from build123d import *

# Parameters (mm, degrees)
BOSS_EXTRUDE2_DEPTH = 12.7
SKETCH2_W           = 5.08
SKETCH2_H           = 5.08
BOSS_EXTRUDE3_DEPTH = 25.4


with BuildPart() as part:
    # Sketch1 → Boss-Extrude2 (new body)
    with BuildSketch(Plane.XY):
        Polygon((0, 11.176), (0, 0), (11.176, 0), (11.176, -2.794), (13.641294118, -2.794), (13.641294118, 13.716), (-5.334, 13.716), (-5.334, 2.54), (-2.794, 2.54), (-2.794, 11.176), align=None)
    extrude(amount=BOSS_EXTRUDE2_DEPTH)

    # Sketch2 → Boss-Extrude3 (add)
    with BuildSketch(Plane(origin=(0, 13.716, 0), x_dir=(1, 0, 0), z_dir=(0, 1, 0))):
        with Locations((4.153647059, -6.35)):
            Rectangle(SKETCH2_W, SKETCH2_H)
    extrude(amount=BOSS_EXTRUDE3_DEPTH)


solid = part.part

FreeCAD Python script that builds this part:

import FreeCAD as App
import Part
import Sketcher
from FreeCAD import Vector
Q = App.Units.Quantity


def add_polygon(sketch, points):
    """Adds a closed chain of lines whose ends are joined by coincident constraints."""
    first, n = sketch.GeometryCount, len(points)
    for a, b in zip(points, points[1:] + points[:1]):
        sketch.addGeometry(Part.LineSegment(App.Vector(*a, 0), App.Vector(*b, 0)), False)
    for i in range(n):
        sketch.addConstraint(Sketcher.Constraint("Coincident", first + i, 2, first + (i + 1) % n, 1))

doc = App.newDocument("Part")
body = doc.addObject("PartDesign::Body", "Body")

sketch1 = body.newObject("Sketcher::SketchObject", "Sketch")
sketch1.AttachmentSupport = (doc.getObject("XY_Plane"), [""])
sketch1.MapMode = "FlatFace"
add_polygon(sketch1, [(0, 11.2), (0, 0), (11.2, 0), (11.2, -2.8), (13.6, -2.8), (13.6, 13.7), (-5.3, 13.7), (-5.3, 2.5), (-2.8, 2.5), (-2.8, 11.2)])
sketch1.addConstraint(Sketcher.Constraint("Vertical", 0))
sketch1.addConstraint(Sketcher.Constraint("Horizontal", 1))
sketch1.addConstraint(Sketcher.Constraint("Vertical", 2))
sketch1.addConstraint(Sketcher.Constraint("Horizontal", 3))
sketch1.addConstraint(Sketcher.Constraint("Vertical", 4))
sketch1.addConstraint(Sketcher.Constraint("Horizontal", 5))
sketch1.addConstraint(Sketcher.Constraint("Vertical", 6))
sketch1.addConstraint(Sketcher.Constraint("Horizontal", 7))
sketch1.addConstraint(Sketcher.Constraint("Vertical", 8))
sketch1.addConstraint(Sketcher.Constraint("Horizontal", 9))
sketch1.addConstraint(Sketcher.Constraint("Coincident", 0, 2, -1, 1))
sketch1.addConstraint(Sketcher.Constraint("Equal", 1, 0))
sketch1.addConstraint(Sketcher.Constraint("Equal", 9, 2))
sketch1.addConstraint(Sketcher.Constraint("Equal", 0, 6))
sketch1.addConstraint(Sketcher.Constraint("DistanceX", 7, 1, 7, 2, Q("0.1 in")))
sketch1.addConstraint(Sketcher.Constraint("DistanceX", 1, 1, 1, 2, Q("0.44 in")))
sketch1.addConstraint(Sketcher.Constraint("DistanceX", 9, 1, 9, 2, Q("0.11 in")))
sketch1.addConstraint(Sketcher.Constraint("DistanceY", 4, 1, 4, 2, Q("0.65 in")))
sketch1.addConstraint(Sketcher.Constraint("DistanceX", 3, 1, 3, 2, Q("2.465294 mm")))
pad1 = body.newObject("PartDesign::Pad", "Pad")
pad1.Profile = sketch1
pad1.Length = Q("0.5 in")

sketch2 = body.newObject("Sketcher::SketchObject", "Sketch001")
sketch2.AttachmentSupport = (doc.getObject("XZ_Plane"), [""])
sketch2.MapMode = "FlatFace"
sketch2.AttachmentOffset = App.Placement(Vector(0, 0, -0.54 * 25.4), App.Rotation())
add_polygon(sketch2, [(2, 4), (2, 9), (7, 9), (7, 4)])
sketch2.addConstraint(Sketcher.Constraint("Vertical", 0))
sketch2.addConstraint(Sketcher.Constraint("Horizontal", 1))
sketch2.addConstraint(Sketcher.Constraint("Vertical", 2))
sketch2.addConstraint(Sketcher.Constraint("Horizontal", 3))
sketch2.addConstraint(Sketcher.Constraint("Equal", 3, 0))
sketch2.addConstraint(Sketcher.Constraint("DistanceX", 1, 1, 1, 2, Q("0.2 in")))
sketch2.addConstraint(Sketcher.Constraint("DistanceY", -1, 1, 0, 2, Q("0.35 in")))
sketch2.addConstraint(Sketcher.Constraint("DistanceX", -1, 1, 0, 2, Q("1.613647 mm")))
pad2 = body.newObject("PartDesign::Pad", "Pad001")
pad2.Profile = sketch2
pad2.Length = Q("1 in")
pad2.Reversed = True

doc.recompute()
